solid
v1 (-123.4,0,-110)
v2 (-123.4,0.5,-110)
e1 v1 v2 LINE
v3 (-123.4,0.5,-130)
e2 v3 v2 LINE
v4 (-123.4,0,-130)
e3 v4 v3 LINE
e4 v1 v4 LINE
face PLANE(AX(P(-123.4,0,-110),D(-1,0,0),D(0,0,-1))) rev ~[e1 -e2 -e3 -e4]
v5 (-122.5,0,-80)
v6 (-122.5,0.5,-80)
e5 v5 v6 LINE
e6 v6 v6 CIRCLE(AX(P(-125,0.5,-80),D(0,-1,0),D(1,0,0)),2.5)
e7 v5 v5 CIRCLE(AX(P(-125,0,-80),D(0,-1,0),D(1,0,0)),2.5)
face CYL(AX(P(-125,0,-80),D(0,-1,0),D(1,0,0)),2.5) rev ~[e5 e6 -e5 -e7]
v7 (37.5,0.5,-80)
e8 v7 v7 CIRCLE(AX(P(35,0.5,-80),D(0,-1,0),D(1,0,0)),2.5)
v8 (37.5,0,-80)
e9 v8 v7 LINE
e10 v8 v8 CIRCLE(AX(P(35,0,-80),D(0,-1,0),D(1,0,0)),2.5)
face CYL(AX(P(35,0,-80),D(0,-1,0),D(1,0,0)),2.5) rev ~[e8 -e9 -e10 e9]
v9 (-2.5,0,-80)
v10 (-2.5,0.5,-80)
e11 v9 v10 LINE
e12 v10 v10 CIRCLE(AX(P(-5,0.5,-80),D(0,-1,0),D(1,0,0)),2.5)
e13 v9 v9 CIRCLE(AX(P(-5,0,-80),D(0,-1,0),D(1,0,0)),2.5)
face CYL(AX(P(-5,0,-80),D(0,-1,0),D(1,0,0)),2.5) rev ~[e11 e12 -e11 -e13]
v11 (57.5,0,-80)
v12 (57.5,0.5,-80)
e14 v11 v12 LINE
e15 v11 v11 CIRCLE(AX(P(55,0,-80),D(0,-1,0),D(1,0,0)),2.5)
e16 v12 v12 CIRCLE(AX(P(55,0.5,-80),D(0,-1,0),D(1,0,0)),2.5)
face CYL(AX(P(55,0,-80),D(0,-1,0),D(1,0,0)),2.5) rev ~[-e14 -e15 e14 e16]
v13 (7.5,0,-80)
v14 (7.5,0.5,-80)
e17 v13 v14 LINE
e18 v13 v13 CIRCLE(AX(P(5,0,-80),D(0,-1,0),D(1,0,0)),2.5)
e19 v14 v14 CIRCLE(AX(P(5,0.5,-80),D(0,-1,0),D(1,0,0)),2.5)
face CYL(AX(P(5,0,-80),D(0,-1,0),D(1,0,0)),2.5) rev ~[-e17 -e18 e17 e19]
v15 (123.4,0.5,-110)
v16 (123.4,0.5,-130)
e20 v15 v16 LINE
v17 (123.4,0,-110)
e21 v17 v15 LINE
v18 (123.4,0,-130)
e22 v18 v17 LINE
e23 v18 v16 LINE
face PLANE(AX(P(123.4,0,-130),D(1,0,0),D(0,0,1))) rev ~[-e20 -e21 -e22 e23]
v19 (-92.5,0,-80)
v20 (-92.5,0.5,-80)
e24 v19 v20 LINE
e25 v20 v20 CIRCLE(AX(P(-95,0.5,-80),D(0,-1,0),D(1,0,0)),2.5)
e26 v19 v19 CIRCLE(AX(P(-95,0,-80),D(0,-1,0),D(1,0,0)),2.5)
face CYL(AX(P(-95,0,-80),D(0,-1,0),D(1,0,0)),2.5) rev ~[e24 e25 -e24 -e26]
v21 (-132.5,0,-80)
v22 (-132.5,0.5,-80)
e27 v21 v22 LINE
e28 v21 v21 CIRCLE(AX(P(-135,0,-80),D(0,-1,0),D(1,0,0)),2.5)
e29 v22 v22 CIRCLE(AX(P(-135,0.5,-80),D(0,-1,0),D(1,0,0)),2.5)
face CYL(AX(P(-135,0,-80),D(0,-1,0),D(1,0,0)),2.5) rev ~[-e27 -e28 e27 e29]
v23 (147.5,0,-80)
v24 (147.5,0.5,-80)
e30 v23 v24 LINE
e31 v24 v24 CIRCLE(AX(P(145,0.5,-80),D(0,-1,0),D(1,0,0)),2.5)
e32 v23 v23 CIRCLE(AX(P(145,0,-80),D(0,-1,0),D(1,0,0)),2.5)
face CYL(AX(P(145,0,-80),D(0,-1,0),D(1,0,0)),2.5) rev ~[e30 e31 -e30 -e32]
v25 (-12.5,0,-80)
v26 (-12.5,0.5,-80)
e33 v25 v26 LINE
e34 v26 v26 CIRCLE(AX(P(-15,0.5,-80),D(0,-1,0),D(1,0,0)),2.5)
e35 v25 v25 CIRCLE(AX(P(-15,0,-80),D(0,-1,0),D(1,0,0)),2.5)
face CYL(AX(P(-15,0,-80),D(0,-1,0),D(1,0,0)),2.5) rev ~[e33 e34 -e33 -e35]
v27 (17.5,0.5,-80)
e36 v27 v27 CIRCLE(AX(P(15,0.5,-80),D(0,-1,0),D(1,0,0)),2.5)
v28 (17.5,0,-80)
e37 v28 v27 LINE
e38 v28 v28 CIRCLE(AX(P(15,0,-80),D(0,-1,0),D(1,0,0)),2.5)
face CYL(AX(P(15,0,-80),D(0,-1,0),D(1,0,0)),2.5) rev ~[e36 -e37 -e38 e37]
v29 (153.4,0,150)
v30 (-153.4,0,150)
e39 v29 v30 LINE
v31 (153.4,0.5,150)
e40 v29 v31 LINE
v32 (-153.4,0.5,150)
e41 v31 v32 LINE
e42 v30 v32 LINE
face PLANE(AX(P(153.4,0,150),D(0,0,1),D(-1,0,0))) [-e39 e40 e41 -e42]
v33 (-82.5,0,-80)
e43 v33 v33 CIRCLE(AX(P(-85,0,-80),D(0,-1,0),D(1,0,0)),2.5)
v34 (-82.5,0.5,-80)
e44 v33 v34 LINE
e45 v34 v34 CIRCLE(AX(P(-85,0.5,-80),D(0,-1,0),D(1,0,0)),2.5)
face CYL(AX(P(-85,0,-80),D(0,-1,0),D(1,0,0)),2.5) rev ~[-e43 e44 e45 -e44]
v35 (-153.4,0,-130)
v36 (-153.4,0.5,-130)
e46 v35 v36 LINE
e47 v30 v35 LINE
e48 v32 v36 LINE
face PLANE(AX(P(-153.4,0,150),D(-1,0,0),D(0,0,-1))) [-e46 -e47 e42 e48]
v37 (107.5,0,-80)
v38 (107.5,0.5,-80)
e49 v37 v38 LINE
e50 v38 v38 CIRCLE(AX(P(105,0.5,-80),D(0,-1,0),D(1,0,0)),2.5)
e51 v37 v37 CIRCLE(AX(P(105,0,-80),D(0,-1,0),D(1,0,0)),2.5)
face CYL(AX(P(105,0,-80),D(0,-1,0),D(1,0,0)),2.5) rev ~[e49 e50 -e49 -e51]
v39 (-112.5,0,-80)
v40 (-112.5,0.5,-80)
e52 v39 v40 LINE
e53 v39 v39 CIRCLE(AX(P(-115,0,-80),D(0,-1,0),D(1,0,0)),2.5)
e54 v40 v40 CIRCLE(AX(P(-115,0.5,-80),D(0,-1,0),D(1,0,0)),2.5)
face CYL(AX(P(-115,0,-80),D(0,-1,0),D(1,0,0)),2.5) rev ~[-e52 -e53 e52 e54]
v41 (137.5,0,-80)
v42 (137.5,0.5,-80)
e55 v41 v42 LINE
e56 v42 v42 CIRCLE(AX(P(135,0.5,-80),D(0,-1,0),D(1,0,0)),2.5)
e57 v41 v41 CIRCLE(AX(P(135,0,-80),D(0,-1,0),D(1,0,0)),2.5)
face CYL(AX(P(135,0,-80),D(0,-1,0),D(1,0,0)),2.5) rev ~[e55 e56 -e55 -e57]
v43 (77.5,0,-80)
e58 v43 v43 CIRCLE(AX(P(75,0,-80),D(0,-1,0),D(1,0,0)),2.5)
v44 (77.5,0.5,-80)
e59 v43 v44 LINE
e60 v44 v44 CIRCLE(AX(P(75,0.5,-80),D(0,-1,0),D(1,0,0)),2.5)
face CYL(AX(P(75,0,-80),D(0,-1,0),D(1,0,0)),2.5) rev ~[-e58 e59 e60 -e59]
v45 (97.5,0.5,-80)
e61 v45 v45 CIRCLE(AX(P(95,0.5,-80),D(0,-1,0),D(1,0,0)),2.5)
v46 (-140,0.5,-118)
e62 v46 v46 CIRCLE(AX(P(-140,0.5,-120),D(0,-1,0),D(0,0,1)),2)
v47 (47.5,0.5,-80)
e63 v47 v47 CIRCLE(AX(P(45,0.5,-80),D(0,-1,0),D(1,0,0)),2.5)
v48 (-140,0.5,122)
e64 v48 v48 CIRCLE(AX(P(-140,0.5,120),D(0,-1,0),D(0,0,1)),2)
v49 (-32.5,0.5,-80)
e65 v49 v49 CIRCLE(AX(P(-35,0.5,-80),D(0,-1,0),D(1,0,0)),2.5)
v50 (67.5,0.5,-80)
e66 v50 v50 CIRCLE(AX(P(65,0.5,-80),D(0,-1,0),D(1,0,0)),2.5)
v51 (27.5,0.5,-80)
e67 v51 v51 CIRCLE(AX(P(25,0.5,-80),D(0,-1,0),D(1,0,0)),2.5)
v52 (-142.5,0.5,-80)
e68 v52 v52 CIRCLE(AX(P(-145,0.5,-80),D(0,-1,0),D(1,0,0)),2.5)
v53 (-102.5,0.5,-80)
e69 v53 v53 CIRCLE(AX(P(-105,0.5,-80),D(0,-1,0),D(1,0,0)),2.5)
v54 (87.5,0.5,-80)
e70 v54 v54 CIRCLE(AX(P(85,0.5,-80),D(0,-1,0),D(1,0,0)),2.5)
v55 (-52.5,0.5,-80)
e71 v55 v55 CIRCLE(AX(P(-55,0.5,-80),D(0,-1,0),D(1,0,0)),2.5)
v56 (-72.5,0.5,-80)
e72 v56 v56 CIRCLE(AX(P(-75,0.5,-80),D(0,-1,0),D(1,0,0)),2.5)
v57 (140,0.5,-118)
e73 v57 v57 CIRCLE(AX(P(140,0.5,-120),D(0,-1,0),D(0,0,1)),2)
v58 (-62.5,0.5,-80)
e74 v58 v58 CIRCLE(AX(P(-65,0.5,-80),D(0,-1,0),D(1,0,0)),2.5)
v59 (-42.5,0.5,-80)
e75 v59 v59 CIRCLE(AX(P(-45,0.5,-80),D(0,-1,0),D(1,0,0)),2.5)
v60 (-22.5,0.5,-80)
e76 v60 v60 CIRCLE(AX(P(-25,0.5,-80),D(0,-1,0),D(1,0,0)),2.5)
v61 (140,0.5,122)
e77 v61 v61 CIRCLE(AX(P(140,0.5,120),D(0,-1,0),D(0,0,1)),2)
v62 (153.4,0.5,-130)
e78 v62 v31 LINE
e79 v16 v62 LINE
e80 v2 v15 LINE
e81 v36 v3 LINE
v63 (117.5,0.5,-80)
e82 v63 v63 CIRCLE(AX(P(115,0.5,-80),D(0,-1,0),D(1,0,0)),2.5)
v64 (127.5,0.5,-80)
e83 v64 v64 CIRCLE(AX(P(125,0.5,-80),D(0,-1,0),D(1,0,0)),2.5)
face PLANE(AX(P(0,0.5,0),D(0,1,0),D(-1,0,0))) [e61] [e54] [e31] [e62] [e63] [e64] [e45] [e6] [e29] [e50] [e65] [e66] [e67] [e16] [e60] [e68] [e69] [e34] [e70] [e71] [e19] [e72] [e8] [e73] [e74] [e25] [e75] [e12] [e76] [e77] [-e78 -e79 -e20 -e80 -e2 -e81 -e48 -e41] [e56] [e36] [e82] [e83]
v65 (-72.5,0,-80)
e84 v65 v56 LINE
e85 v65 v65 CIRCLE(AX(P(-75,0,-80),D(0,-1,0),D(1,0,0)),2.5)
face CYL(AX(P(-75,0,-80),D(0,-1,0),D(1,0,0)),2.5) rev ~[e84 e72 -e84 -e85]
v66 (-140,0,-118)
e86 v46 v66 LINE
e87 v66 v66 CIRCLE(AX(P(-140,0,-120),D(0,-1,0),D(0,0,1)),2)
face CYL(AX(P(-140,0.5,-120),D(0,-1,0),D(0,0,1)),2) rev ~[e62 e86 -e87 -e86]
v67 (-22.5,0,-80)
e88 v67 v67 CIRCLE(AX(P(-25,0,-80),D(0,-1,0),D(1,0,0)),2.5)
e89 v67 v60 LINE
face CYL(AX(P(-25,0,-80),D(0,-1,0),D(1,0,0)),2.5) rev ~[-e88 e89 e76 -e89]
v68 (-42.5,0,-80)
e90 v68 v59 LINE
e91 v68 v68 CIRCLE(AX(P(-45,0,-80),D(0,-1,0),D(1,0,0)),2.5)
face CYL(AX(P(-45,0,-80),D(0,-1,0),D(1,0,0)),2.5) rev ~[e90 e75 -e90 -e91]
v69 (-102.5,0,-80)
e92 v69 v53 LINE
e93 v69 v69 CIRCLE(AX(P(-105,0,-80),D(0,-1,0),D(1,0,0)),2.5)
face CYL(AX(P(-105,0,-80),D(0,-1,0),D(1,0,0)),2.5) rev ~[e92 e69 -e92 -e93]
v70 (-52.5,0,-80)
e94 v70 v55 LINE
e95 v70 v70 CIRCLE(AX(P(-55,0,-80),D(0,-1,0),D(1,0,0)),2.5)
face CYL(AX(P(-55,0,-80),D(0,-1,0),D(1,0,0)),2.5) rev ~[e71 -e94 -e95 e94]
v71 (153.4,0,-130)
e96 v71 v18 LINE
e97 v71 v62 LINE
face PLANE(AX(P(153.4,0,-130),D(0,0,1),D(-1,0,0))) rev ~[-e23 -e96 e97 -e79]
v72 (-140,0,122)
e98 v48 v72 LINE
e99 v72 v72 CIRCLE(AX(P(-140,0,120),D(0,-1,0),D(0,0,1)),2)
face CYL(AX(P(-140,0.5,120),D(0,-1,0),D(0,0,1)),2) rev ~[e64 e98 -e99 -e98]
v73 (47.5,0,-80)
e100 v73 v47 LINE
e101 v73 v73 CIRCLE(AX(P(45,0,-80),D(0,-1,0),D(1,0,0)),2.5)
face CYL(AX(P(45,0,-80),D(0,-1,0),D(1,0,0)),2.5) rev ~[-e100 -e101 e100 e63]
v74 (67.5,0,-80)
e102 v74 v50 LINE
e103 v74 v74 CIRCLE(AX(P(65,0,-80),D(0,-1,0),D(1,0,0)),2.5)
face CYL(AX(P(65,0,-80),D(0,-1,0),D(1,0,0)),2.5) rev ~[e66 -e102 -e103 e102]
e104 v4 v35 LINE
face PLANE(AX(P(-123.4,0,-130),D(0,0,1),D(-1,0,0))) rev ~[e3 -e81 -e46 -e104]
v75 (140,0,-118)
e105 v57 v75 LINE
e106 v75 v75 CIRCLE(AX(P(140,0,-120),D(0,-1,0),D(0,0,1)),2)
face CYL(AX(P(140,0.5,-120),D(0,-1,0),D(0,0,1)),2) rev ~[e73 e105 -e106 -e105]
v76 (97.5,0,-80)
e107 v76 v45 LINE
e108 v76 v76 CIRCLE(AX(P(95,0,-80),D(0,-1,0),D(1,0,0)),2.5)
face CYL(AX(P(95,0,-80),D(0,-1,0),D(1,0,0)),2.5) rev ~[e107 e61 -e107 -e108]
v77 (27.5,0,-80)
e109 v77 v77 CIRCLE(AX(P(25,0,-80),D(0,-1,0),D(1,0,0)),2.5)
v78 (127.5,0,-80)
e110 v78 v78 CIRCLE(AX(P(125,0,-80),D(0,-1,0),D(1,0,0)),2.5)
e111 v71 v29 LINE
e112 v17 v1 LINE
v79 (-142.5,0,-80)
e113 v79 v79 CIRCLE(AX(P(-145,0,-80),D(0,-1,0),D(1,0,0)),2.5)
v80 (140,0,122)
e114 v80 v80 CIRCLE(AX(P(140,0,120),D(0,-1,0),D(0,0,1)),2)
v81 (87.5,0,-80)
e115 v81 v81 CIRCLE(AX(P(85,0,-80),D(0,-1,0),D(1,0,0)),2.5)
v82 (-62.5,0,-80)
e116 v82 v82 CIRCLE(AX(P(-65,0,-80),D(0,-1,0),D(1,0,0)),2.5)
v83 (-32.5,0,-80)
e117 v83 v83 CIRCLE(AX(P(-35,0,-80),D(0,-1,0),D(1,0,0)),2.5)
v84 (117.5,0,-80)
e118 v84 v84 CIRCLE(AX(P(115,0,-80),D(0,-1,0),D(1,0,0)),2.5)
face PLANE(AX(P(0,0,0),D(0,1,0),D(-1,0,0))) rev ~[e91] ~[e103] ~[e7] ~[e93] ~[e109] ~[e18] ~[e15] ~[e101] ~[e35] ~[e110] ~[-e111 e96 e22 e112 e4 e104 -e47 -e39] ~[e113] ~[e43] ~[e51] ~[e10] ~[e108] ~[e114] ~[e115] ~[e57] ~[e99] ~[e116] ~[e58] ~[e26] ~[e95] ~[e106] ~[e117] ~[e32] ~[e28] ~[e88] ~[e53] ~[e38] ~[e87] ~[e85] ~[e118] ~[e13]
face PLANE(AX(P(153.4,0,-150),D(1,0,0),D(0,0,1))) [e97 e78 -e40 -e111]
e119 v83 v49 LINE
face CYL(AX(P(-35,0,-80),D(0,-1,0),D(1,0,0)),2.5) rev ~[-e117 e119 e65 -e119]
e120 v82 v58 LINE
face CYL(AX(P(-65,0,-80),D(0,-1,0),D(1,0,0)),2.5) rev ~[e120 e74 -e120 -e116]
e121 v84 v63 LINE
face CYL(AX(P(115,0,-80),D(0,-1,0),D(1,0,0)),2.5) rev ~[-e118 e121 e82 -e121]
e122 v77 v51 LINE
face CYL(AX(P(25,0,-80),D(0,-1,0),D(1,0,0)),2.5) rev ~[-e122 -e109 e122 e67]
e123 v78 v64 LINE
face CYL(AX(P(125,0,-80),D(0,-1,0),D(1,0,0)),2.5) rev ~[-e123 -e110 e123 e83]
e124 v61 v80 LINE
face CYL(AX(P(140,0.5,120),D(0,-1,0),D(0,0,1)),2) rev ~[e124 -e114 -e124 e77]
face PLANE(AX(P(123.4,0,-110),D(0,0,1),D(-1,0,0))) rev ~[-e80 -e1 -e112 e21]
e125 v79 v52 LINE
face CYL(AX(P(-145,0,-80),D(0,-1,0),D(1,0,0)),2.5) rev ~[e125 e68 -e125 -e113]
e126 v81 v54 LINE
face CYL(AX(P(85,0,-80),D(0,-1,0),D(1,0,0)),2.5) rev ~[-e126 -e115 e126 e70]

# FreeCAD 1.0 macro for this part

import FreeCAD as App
import Part
import Sketcher

V = App.Vector
Q = App.Units.Quantity

doc = App.newDocument("Part")
body = doc.addObject("PartDesign::Body", "Body")

sketch1 = doc.addObject("Sketcher::SketchObject", "Sketch")
body.addObject(sketch1)
sketch1.AttachmentSupport = (doc.XZ_Plane, [""])
sketch1.MapMode = "FlatFace"
sketch1.addGeometry(Part.LineSegment(V(-153, 150, 0), V(153, 150, 0)), False)
sketch1.addGeometry(Part.LineSegment(V(153, 150, 0), V(153, -150, 0)), False)
sketch1.addGeometry(Part.LineSegment(V(153, -150, 0), V(-153, -150, 0)), False)
sketch1.addGeometry(Part.LineSegment(V(-153, -150, 0), V(-153, 150, 0)), False)
sketch1.addConstraint(Sketcher.Constraint("Coincident", 0, 2, 1, 1))
sketch1.addConstraint(Sketcher.Constraint("Coincident", 1, 2, 2, 1))
sketch1.addConstraint(Sketcher.Constraint("Coincident", 2, 2, 3, 1))
sketch1.addConstraint(Sketcher.Constraint("Coincident", 3, 2, 0, 1))
sketch1.addConstraint(Sketcher.Constraint("Horizontal", 0))
sketch1.addConstraint(Sketcher.Constraint("Vertical", 1))
sketch1.addConstraint(Sketcher.Constraint("Horizontal", 2))
sketch1.addConstraint(Sketcher.Constraint("Vertical", 3))
sketch1.addConstraint(Sketcher.Constraint("Symmetric", 0, 2, 2, 2, -1, 1))
sketch1.addConstraint(Sketcher.Constraint("DistanceY", 1, 2, 1, 1, Q("300 mm")))
sketch1.addConstraint(Sketcher.Constraint("DistanceX", 0, 1, 0, 2, Q("306.8 mm")))
pad1 = doc.addObject("PartDesign::Pad", "Pad")
body.addObject(pad1)
pad1.Profile = sketch1
pad1.Length = 0.5
pad1.Reversed = True

sketch2 = doc.addObject("Sketcher::SketchObject", "Sketch001")
body.addObject(sketch2)
sketch2.AttachmentSupport = (doc.XZ_Plane, [""])
sketch2.MapMode = "FlatFace"
sketch2.AttachmentOffset = App.Placement(V(0, 0, -0.5), App.Rotation())
sketch2.addGeometry(Part.Circle(V(-140, 120, 0), V(0, 0, 1), 2), False)
sketch2.addGeometry(Part.Circle(V(140, 120, 0), V(0, 0, 1), 2), False)
sketch2.addGeometry(Part.Circle(V(-140, -120, 0), V(0, 0, 1), 2), False)
sketch2.addGeometry(Part.Circle(V(140, -120, 0), V(0, 0, 1), 2), False)
sketch2.addConstraint(Sketcher.Constraint("Equal", 0, 1))
sketch2.addConstraint(Sketcher.Constraint("Equal", 1, 2))
sketch2.addConstraint(Sketcher.Constraint("Equal", 2, 3))
sketch2.addConstraint(Sketcher.Constraint("Symmetric", 1, 3, 2, 3, -1, 1))
sketch2.addConstraint(Sketcher.Constraint("Symmetric", 0, 3, 3, 3, -1, 1))
sketch2.addConstraint(Sketcher.Constraint("Symmetric", 0, 3, 1, 3, -2))
sketch2.addConstraint(Sketcher.Constraint("Diameter", 0, Q("4 mm")))
sketch2.addConstraint(Sketcher.Constraint("DistanceX", 0, 3, -1, 1, Q("140 mm")))
sketch2.addConstraint(Sketcher.Constraint("DistanceY", -1, 1, 0, 3, Q("120 mm")))
doc.recompute()
hole = doc.addObject("PartDesign::Hole", "Hole")
body.addObject(hole)
hole.Profile = sketch2
hole.ThreadType = "None"
hole.Diameter = 4
hole.DepthType = "ThroughAll"
hole.Reversed = True

sketch3 = doc.addObject("Sketcher::SketchObject", "Sketch002")
body.addObject(sketch3)
sketch3.AttachmentSupport = (doc.XZ_Plane, [""])
sketch3.MapMode = "FlatFace"
sketch3.addGeometry(Part.LineSegment(V(153, -150, 0), V(153, -130, 0)), False)
sketch3.addGeometry(Part.LineSegment(V(153, -130, 0), V(123, -130, 0)), False)
sketch3.addGeometry(Part.LineSegment(V(123, -130, 0), V(123, -110, 0)), False)
sketch3.addGeometry(Part.LineSegment(V(123, -110, 0), V(-123, -110, 0)), False)
sketch3.addGeometry(Part.LineSegment(V(-123, -110, 0), V(-123, -130, 0)), False)
sketch3.addGeometry(Part.LineSegment(V(-123, -130, 0), V(-153, -130, 0)), False)
sketch3.addGeometry(Part.LineSegment(V(-153, -130, 0), V(-153, -150, 0)), False)
sketch3.addGeometry(Part.LineSegment(V(-153, -150, 0), V(153, -150, 0)), False)
sketch3.addConstraint(Sketcher.Constraint("Coincident", 0, 2, 1, 1))
sketch3.addConstraint(Sketcher.Constraint("Coincident", 1, 2, 2, 1))
sketch3.addConstraint(Sketcher.Constraint("Coincident", 2, 2, 3, 1))
sketch3.addConstraint(Sketcher.Constraint("Coincident", 3, 2, 4, 1))
sketch3.addConstraint(Sketcher.Constraint("Coincident", 4, 2, 5, 1))
sketch3.addConstraint(Sketcher.Constraint("Coincident", 5, 2, 6, 1))
sketch3.addConstraint(Sketcher.Constraint("Coincident", 6, 2, 7, 1))
sketch3.addConstraint(Sketcher.Constraint("Coincident", 7, 2, 0, 1))
sketch3.addConstraint(Sketcher.Constraint("Vertical", 0))
sketch3.addConstraint(Sketcher.Constraint("Horizontal", 1))
sketch3.addConstraint(Sketcher.Constraint("Vertical", 2))
sketch3.addConstraint(Sketcher.Constraint("Horizontal", 3))
sketch3.addConstraint(Sketcher.Constraint("Vertical", 4))
sketch3.addConstraint(Sketcher.Constraint("Horizontal", 5))
sketch3.addConstraint(Sketcher.Constraint("Vertical", 6))
sketch3.addConstraint(Sketcher.Constraint("Horizontal", 7))
sketch3.addConstraint(Sketcher.Constraint("Symmetric", 1, 2, 4, 2, -2))
sketch3.addConstraint(Sketcher.Constraint("Equal", 1, 5))
sketch3.addConstraint(Sketcher.Constraint("Equal", 0, 2))
sketch3.addConstraint(Sketcher.Constraint("DistanceX", 1, 2, 1, 1, Q("30 mm")))
sketch3.addConstraint(Sketcher.Constraint("DistanceY", 0, 1, 0, 2, Q("20 mm")))
sketch3.addConstraint(Sketcher.Constraint("DistanceX", 3, 2, 3, 1, Q("246.8 mm")))
sketch3.addConstraint(Sketcher.Constraint("DistanceY", 0, 2, -1, 1, Q("130 mm")))
pocket1 = doc.addObject("PartDesign::Pocket", "Pocket")
body.addObject(pocket1)
pocket1.Profile = sketch3
pocket1.Type = "ThroughAll"

sketch4 = doc.addObject("Sketcher::SketchObject", "Sketch003")
body.addObject(sketch4)
sketch4.AttachmentSupport = (doc.XZ_Plane, [""])
sketch4.MapMode = "FlatFace"
sketch4.addGeometry(Part.Circle(V(-145, -80, 0), V(0, 0, 1), 2.5), False)
sketch4.addConstraint(Sketcher.Constraint("Diameter", 0, Q("5 mm")))
sketch4.addConstraint(Sketcher.Constraint("DistanceX", 0, 3, -1, 1, Q("145 mm")))
sketch4.addConstraint(Sketcher.Constraint("DistanceY", 0, 3, -1, 1, Q("80 mm")))
pocket2 = doc.addObject("PartDesign::Pocket", "Pocket001")
body.addObject(pocket2)
pocket2.Profile = sketch4
pocket2.Length = 0.5
doc.recompute()

linearpattern = doc.addObject("PartDesign::LinearPattern", "LinearPattern")
body.addObject(linearpattern)
linearpattern.Originals = [pocket2]
linearpattern.Direction = (doc.X_Axis, [""])
linearpattern.Mode = "offset"
linearpattern.Offset = 10
linearpattern.Occurrences = 30
body.Tip = linearpattern

doc.recompute()
